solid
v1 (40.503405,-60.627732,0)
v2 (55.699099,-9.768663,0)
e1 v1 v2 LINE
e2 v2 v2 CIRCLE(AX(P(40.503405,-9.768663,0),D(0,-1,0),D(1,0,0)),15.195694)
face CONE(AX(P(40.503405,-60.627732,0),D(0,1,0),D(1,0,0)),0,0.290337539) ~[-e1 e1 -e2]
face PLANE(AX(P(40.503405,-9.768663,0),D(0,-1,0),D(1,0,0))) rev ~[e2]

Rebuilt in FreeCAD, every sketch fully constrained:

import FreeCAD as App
import Part
import Sketcher
Q = App.Units.Quantity


def add_polygon(sketch, points):
    """Adds a closed chain of lines whose ends are joined by coincident constraints."""
    first, n = sketch.GeometryCount, len(points)
    for a, b in zip(points, points[1:] + points[:1]):
        sketch.addGeometry(Part.LineSegment(App.Vector(*a, 0), App.Vector(*b, 0)), False)
    for i in range(n):
        sketch.addConstraint(Sketcher.Constraint("Coincident", first + i, 2, first + (i + 1) % n, 1))

doc = App.newDocument("Part")
params = doc.addObject("Spreadsheet::Sheet", "Params")
for row, (alias, value) in enumerate([
    ("revolution_angle", "360 deg"),
], start=1):
    params.set(f"A{row}", alias)
    params.set(f"B{row}", "=" + value)
    params.setAlias(f"B{row}", alias)

body = doc.addObject("PartDesign::Body", "Body")

# Sketch on XY plane
sketch1 = doc.addObject("Sketcher::SketchObject", "Sketch")
body.addObject(sketch1)
sketch1.AttachmentSupport = (doc.XY_Plane, [""])
sketch1.MapMode = "FlatFace"
add_polygon(sketch1, [(55.699099, -9.768663), (40.503405, -9.768663), (40.503405, -60.627732)])  # lines 0-2
sketch1.addGeometry(Part.LineSegment(App.Vector(40.503405, -9.768663, 0), App.Vector(40.503405, -60.627732, 0)), True)  # axis
sketch1.addConstraint([
    Sketcher.Constraint("Horizontal", 0),
    Sketcher.Constraint("Vertical", 1),
    Sketcher.Constraint("Vertical", 3),
    Sketcher.Constraint("Coincident", 3, 1, 0, 2),
    Sketcher.Constraint("Equal", 1, 3),
    Sketcher.Constraint("DistanceY", 1, 2, 1, 1, Q("50.859069 mm")),
    Sketcher.Constraint("DistanceX", -1, 1, 2, 2, Q("55.699099 mm")),
    Sketcher.Constraint("DistanceX", 0, 2, 0, 1, Q("15.195694 mm")),
    Sketcher.Constraint("DistanceY", 0, 2, -1, 1, Q("9.768663 mm")),
])
revolution = doc.addObject("PartDesign::Revolution", "Revolution")
body.addObject(revolution)
revolution.Profile = sketch1
revolution.ReferenceAxis = (sketch1, ["Axis0"])
revolution.setExpression("Angle", "Params.revolution_angle")

doc.recompute()
